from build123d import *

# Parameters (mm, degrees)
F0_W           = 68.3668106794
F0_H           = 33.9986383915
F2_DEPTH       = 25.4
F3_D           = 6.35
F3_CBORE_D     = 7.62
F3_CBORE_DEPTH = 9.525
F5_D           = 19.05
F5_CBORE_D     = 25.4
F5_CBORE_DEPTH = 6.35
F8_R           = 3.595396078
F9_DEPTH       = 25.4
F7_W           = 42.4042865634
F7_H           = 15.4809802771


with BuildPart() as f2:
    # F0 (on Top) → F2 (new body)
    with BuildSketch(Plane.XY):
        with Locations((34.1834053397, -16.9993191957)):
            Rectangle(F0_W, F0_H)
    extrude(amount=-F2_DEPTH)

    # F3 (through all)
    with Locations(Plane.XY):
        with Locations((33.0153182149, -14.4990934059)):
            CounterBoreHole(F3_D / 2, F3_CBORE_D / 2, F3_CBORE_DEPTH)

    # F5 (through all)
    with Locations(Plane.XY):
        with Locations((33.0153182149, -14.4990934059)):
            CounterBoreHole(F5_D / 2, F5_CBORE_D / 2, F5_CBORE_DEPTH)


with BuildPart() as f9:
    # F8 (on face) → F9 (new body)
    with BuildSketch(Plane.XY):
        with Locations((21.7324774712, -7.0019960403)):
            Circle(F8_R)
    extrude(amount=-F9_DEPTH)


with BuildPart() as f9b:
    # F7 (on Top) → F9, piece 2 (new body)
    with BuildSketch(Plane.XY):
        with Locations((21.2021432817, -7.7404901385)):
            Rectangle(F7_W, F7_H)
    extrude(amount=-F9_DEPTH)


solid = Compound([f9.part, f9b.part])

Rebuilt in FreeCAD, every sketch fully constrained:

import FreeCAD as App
import Part
import Sketcher
from FreeCAD import Vector
Q = App.Units.Quantity


def add_polygon(sketch, points):
    """Adds a closed chain of lines whose ends are joined by coincident constraints."""
    first, n = sketch.GeometryCount, len(points)
    for a, b in zip(points, points[1:] + points[:1]):
        sketch.addGeometry(Part.LineSegment(App.Vector(*a, 0), App.Vector(*b, 0)), False)
    for i in range(n):
        sketch.addConstraint(Sketcher.Constraint("Coincident", first + i, 2, first + (i + 1) % n, 1))

doc = App.newDocument("Part")
body = doc.addObject("PartDesign::Body", "Body")

# Sketch on XY plane
sketch1 = body.newObject("Sketcher::SketchObject", "Sketch")
sketch1.AttachmentSupport = (doc.getObject("XY_Plane"), [""])
sketch1.MapMode = "FlatFace"
add_polygon(sketch1, [(0, 0), (0, -34), (68, -34), (68, 0)])  # lines 0-3
sketch1.addConstraint(Sketcher.Constraint("Vertical", 0))
sketch1.addConstraint(Sketcher.Constraint("Horizontal", 1))
sketch1.addConstraint(Sketcher.Constraint("Vertical", 2))
sketch1.addConstraint(Sketcher.Constraint("Horizontal", 3))
sketch1.addConstraint(Sketcher.Constraint("Coincident", 3, 2, -1, 1))
sketch1.addConstraint(Sketcher.Constraint("DistanceX", 1, 1, 1, 2, Q("68.366811 mm")))
sketch1.addConstraint(Sketcher.Constraint("DistanceY", 0, 2, 0, 1, Q("33.998638 mm")))
pad1 = body.newObject("PartDesign::Pad", "Pad")
pad1.Profile = sketch1
pad1.Length = Q("1 in")
pad1.Reversed = True

# Sketch on XY plane
sketch2 = body.newObject("Sketcher::SketchObject", "Sketch001")
sketch2.AttachmentSupport = (doc.getObject("XY_Plane"), [""])
sketch2.MapMode = "FlatFace"
sketch2.addGeometry(Part.Circle(Vector(33, -14.5, 0), Vector(0, 0, 1), 3.2), False)
sketch2.addConstraint(Sketcher.Constraint("Diameter", 0, Q("0.25 in")))
sketch2.addConstraint(Sketcher.Constraint("DistanceX", -1, 1, 0, 3, Q("33.015318 mm")))
sketch2.addConstraint(Sketcher.Constraint("DistanceY", 0, 3, -1, 1, Q("14.499093 mm")))
doc.recompute()
hole = body.newObject("PartDesign::Hole", "Hole")
hole.Profile = sketch2
hole.ThreadType = "None"
hole.Diameter = Q("0.25 in")
hole.DepthType = "ThroughAll"
hole.HoleCutType = "Counterbore"
hole.HoleCutDiameter = Q("0.3 in")
hole.HoleCutDepth = Q("0.375 in")

# Sketch on XY plane
sketch3 = body.newObject("Sketcher::SketchObject", "Sketch002")
sketch3.AttachmentSupport = (doc.getObject("XY_Plane"), [""])
sketch3.MapMode = "FlatFace"
sketch3.addGeometry(Part.Circle(Vector(33, -14, 0), Vector(0, 0, 1), 10), False)
sketch3.addConstraint(Sketcher.Constraint("Diameter", 0, Q("0.75 in")))
sketch3.addConstraint(Sketcher.Constraint("DistanceX", -1, 1, 0, 3, Q("33.015318 mm")))
sketch3.addConstraint(Sketcher.Constraint("DistanceY", 0, 3, -1, 1, Q("14.499093 mm")))
doc.recompute()
hole2 = body.newObject("PartDesign::Hole", "Hole001")
hole2.Profile = sketch3
hole2.ThreadType = "None"
hole2.Diameter = Q("0.75 in")
hole2.DepthType = "ThroughAll"
hole2.HoleCutType = "Counterbore"
hole2.HoleCutDiameter = Q("1 in")
hole2.HoleCutDepth = Q("0.25 in")
body2 = doc.addObject("PartDesign::Body", "Body001")

# Sketch on XY plane
sketch4 = body2.newObject("Sketcher::SketchObject", "Sketch003")
sketch4.AttachmentSupport = (doc.getObject("XY_Plane001"), [""])
sketch4.MapMode = "FlatFace"
sketch4.addGeometry(Part.Circle(Vector(21.7, -7, 0), Vector(0, 0, 1), 3.6), False)
sketch4.addConstraint(Sketcher.Constraint("Diameter", 0, Q("7.190792 mm")))
sketch4.addConstraint(Sketcher.Constraint("DistanceX", -1, 1, 0, 3, Q("21.732477 mm")))
sketch4.addConstraint(Sketcher.Constraint("DistanceY", 0, 3, -1, 1, Q("7.001996 mm")))
pad2 = body2.newObject("PartDesign::Pad", "Pad001")
pad2.Profile = sketch4
pad2.Length = Q("1 in")
pad2.Reversed = True
body3 = doc.addObject("PartDesign::Body", "Body002")

# Sketch on XY plane
sketch5 = body3.newObject("Sketcher::SketchObject", "Sketch004")
sketch5.AttachmentSupport = (doc.getObject("XY_Plane002"), [""])
sketch5.MapMode = "FlatFace"
add_polygon(sketch5, [(0, 0), (0, -15), (42, -15), (42, 0)])  # lines 0-3
sketch5.addConstraint(Sketcher.Constraint("Vertical", 0))
sketch5.addConstraint(Sketcher.Constraint("Horizontal", 1))
sketch5.addConstraint(Sketcher.Constraint("Vertical", 2))
sketch5.addConstraint(Sketcher.Constraint("Horizontal", 3))
sketch5.addConstraint(Sketcher.Constraint("Coincident", 3, 2, -1, 1))
sketch5.addConstraint(Sketcher.Constraint("DistanceY", 0, 2, 0, 1, Q("15.48098 mm")))
sketch5.addConstraint(Sketcher.Constraint("DistanceX", 1, 1, 1, 2, Q("42.404287 mm")))
pad3 = body3.newObject("PartDesign::Pad", "Pad002")
pad3.Profile = sketch5
pad3.Length = Q("1 in")
pad3.Reversed = True
body.Visibility = False

doc.recompute()
